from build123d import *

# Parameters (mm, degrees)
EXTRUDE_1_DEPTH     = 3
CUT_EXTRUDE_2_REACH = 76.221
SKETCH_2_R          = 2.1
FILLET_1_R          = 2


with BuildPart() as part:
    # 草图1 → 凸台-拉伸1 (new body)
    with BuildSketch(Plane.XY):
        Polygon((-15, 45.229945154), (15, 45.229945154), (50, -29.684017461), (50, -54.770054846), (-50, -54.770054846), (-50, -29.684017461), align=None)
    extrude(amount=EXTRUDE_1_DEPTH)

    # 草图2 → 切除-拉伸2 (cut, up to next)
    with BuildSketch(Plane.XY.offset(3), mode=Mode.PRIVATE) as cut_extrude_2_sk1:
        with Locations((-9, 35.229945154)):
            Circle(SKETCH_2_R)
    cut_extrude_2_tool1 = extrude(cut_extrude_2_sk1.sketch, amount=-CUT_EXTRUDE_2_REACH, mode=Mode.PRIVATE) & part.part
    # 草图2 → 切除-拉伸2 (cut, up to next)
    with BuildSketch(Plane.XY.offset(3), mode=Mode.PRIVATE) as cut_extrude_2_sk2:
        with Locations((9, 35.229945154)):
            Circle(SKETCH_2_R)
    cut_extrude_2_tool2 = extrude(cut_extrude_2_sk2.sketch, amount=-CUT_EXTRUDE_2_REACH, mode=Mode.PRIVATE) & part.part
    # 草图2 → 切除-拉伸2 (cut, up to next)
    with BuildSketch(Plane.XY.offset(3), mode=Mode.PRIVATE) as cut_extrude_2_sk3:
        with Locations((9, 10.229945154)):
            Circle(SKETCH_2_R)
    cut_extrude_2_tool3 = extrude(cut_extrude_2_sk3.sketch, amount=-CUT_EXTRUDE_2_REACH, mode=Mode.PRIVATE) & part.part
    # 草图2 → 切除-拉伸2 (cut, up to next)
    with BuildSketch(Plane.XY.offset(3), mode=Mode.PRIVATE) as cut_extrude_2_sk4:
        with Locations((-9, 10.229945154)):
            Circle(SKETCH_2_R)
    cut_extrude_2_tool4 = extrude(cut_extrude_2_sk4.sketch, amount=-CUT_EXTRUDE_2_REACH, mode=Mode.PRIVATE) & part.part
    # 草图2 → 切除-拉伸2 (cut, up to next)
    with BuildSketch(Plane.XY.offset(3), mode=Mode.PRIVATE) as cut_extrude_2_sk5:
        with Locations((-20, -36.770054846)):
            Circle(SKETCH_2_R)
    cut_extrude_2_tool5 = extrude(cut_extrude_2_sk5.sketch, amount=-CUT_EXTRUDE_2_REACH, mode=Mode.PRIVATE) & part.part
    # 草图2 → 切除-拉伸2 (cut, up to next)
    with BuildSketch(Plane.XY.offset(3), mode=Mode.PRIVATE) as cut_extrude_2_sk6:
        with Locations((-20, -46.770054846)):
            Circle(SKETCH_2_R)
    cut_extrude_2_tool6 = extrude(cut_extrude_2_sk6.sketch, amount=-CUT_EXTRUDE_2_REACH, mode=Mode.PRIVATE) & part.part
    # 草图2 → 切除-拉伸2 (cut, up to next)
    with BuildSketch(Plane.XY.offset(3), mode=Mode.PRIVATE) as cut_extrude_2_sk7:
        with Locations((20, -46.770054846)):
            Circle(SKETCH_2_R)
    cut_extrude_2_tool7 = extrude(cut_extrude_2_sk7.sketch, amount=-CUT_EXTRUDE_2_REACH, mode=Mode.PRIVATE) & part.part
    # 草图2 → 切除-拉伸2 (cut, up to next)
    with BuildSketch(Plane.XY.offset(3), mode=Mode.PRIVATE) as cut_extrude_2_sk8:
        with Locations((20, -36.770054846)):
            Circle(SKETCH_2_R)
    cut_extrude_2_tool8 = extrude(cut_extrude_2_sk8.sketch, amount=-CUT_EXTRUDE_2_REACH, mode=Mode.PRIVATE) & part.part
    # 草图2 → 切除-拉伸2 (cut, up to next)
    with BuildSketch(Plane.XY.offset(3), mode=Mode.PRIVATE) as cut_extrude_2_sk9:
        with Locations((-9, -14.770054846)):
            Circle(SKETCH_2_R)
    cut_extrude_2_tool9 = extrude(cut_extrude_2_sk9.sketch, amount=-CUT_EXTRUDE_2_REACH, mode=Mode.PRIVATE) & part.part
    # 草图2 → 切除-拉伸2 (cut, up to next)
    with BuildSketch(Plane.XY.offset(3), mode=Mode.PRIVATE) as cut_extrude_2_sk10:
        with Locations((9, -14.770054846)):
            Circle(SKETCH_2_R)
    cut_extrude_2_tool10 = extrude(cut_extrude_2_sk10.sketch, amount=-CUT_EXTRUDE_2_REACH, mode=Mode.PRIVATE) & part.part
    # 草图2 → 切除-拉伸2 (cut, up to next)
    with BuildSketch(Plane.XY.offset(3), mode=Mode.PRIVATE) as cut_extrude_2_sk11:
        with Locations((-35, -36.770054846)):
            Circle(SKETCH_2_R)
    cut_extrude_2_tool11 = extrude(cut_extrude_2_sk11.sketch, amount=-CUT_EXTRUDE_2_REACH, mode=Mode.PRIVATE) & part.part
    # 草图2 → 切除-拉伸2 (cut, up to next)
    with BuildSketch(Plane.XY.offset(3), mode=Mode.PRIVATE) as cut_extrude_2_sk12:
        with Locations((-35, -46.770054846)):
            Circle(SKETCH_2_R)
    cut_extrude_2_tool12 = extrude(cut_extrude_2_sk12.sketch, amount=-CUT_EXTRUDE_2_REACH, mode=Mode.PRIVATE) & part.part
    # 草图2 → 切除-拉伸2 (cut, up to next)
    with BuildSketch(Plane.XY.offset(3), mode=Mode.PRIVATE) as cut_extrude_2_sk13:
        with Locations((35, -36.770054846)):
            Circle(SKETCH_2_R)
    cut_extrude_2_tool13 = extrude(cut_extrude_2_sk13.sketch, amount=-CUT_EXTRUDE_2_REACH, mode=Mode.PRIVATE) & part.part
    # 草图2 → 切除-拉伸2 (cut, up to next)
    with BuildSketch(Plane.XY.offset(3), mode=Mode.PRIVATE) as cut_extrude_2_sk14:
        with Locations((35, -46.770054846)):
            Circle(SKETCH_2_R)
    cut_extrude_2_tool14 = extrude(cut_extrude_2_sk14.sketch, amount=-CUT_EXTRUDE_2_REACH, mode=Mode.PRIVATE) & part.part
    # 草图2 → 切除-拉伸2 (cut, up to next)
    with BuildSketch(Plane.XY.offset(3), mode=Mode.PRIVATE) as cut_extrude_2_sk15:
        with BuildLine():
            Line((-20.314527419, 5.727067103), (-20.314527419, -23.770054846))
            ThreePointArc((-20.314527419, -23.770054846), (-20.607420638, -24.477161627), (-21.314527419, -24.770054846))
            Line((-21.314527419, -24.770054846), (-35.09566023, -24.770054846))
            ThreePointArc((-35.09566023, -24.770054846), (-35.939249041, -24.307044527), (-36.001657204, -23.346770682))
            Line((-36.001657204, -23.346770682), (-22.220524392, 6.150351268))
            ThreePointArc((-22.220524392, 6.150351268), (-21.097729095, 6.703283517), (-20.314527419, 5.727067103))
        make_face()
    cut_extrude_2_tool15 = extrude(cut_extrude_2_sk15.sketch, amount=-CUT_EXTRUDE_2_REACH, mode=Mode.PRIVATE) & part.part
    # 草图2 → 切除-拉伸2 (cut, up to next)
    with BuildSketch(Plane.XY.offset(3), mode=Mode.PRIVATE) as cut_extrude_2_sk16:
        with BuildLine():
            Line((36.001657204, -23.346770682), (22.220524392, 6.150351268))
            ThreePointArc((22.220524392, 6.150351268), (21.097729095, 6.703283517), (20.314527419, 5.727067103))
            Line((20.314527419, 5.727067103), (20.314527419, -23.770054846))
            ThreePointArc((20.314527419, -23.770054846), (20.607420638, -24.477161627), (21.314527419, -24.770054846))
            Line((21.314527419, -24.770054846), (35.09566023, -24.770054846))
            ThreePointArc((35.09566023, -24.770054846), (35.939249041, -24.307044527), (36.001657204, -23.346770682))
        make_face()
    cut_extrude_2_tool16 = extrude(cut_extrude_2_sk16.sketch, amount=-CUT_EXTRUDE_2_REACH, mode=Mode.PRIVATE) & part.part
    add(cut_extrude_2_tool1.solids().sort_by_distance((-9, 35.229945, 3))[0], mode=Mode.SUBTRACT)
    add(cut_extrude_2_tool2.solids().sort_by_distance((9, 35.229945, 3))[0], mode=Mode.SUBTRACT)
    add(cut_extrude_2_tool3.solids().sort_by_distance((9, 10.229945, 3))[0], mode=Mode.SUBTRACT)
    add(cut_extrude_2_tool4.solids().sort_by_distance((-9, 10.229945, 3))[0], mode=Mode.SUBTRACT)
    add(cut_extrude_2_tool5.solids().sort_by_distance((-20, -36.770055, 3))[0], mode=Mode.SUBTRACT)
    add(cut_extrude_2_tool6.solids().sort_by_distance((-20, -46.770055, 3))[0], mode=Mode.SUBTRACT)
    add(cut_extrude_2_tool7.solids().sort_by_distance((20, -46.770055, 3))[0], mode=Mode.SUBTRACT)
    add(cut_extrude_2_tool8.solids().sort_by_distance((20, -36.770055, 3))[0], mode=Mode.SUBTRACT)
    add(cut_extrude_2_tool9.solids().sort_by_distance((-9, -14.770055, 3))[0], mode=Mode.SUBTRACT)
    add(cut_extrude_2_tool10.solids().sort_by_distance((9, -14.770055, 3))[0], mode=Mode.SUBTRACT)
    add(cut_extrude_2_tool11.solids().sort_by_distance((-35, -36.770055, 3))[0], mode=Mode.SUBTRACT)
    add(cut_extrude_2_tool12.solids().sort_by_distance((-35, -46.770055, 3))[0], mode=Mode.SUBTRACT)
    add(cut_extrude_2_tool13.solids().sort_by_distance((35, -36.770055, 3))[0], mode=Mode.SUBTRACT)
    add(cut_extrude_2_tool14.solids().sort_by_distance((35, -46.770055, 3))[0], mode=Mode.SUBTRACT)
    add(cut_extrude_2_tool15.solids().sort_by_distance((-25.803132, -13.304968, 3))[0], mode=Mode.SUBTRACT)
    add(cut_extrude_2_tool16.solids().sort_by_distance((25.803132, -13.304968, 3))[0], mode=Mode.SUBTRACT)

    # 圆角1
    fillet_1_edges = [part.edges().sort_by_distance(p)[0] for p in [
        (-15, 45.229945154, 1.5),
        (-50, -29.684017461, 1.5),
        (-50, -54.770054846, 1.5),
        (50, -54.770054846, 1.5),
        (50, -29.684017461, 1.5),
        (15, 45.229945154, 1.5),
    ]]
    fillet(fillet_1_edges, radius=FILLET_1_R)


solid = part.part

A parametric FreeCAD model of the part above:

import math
import FreeCAD as App
import Part
import Sketcher

V = App.Vector


def edges_at(feature, points):
    """Names of the edges that pass closest to the given points."""
    edges = feature.Shape.Edges
    near = lambda p: min(range(len(edges)), key=lambda i: edges[i].distToShape(Part.Vertex(*p))[0])
    return sorted({f"Edge{near(p) + 1}" for p in points})

doc = App.newDocument("Part")
body = doc.addObject("PartDesign::Body", "Body")

sketch1 = doc.addObject("Sketcher::SketchObject", "Sketch")
body.addObject(sketch1)
sketch1.AttachmentSupport = (doc.XY_Plane, [""])
sketch1.MapMode = "FlatFace"
sketch1.addGeometry([
    Part.LineSegment(V(15, 45.229945, 0), V(-15, 45.229945, 0)),
    Part.LineSegment(V(-15, 45.229945, 0), V(-50, -29.684017, 0)),
    Part.LineSegment(V(-50, -29.684017, 0), V(-50, -54.770055, 0)),
    Part.LineSegment(V(-50, -54.770055, 0), V(50, -54.770055, 0)),
    Part.LineSegment(V(50, -54.770055, 0), V(50, -29.684017, 0)),
    Part.LineSegment(V(50, -29.684017, 0), V(15, 45.229945, 0)),
], False)
sketch1.addConstraint([
    Sketcher.Constraint("Coincident", 0, 2, 1, 1),
    Sketcher.Constraint("Coincident", 1, 2, 2, 1),
    Sketcher.Constraint("Coincident", 2, 2, 3, 1),
    Sketcher.Constraint("Coincident", 3, 2, 4, 1),
    Sketcher.Constraint("Coincident", 4, 2, 5, 1),
    Sketcher.Constraint("Coincident", 5, 2, 0, 1),
    Sketcher.Constraint("Horizontal", 0),
    Sketcher.Constraint("Vertical", 2),
    Sketcher.Constraint("Horizontal", 3),
    Sketcher.Constraint("Vertical", 4),
    Sketcher.Constraint("Symmetric", 1, 2, 4, 2, -2),
    Sketcher.Constraint("Equal", 1, 5),
    Sketcher.Constraint("DistanceX", 0, 2, 0, 1, 30.0),
    Sketcher.Constraint("DistanceX", 3, 1, 3, 2, 100.0),
    Sketcher.Constraint("DistanceY", 2, 2, 0, 2, 100.0),
    Sketcher.Constraint("Distance", 1, 82.686769),
    Sketcher.Constraint("DistanceY", -1, 1, 0, 2, 45.229945),
])
pad1 = doc.addObject("PartDesign::Pad", "Pad")
body.addObject(pad1)
pad1.Profile = sketch1
pad1.Length = 3

sketch2 = doc.addObject("Sketcher::SketchObject", "Sketch001")
body.addObject(sketch2)
sketch2.AttachmentSupport = (doc.XY_Plane, [""])
sketch2.MapMode = "FlatFace"
sketch2.AttachmentOffset = App.Placement(V(0, 0, 3), App.Rotation())
sketch2.addGeometry(Part.Circle(V(-9, 35.229945, 0), V(0, 0, 1), 2.1), False)
sketch2.addConstraint([
    Sketcher.Constraint("Diameter", 0, 4.2),
    Sketcher.Constraint("DistanceX", 0, 3, -1, 1, 9.0),
    Sketcher.Constraint("DistanceY", -1, 1, 0, 3, 35.229945),
])
pocket1 = doc.addObject("PartDesign::Pocket", "Pocket")
body.addObject(pocket1)
pocket1.Profile = sketch2
pocket1.Type = "UpToFirst"

sketch3 = doc.addObject("Sketcher::SketchObject", "Sketch002")
body.addObject(sketch3)
sketch3.AttachmentSupport = (doc.XY_Plane, [""])
sketch3.MapMode = "FlatFace"
sketch3.AttachmentOffset = App.Placement(V(0, 0, 3), App.Rotation())
sketch3.addGeometry(Part.Circle(V(9, 35.229945, 0), V(0, 0, 1), 2.1), False)
sketch3.addConstraint([
    Sketcher.Constraint("Diameter", 0, 4.2),
    Sketcher.Constraint("DistanceX", -1, 1, 0, 3, 9.0),
    Sketcher.Constraint("DistanceY", -1, 1, 0, 3, 35.229945),
])
pocket2 = doc.addObject("PartDesign::Pocket", "Pocket001")
body.addObject(pocket2)
pocket2.Profile = sketch3
pocket2.Type = "UpToFirst"

sketch4 = doc.addObject("Sketcher::SketchObject", "Sketch003")
body.addObject(sketch4)
sketch4.AttachmentSupport = (doc.XY_Plane, [""])
sketch4.MapMode = "FlatFace"
sketch4.AttachmentOffset = App.Placement(V(0, 0, 3), App.Rotation())
sketch4.addGeometry(Part.Circle(V(9, 10.229945, 0), V(0, 0, 1), 2.1), False)
sketch4.addConstraint([
    Sketcher.Constraint("Diameter", 0, 4.2),
    Sketcher.Constraint("DistanceX", -1, 1, 0, 3, 9.0),
    Sketcher.Constraint("DistanceY", -1, 1, 0, 3, 10.229945),
])
pocket3 = doc.addObject("PartDesign::Pocket", "Pocket002")
body.addObject(pocket3)
pocket3.Profile = sketch4
pocket3.Type = "UpToFirst"

sketch5 = doc.addObject("Sketcher::SketchObject", "Sketch004")
body.addObject(sketch5)
sketch5.AttachmentSupport = (doc.XY_Plane, [""])
sketch5.MapMode = "FlatFace"
sketch5.AttachmentOffset = App.Placement(V(0, 0, 3), App.Rotation())
sketch5.addGeometry(Part.Circle(V(-9, 10.229945, 0), V(0, 0, 1), 2.1), False)
sketch5.addConstraint([
    Sketcher.Constraint("Diameter", 0, 4.2),
    Sketcher.Constraint("DistanceX", 0, 3, -1, 1, 9.0),
    Sketcher.Constraint("DistanceY", -1, 1, 0, 3, 10.229945),
])
pocket4 = doc.addObject("PartDesign::Pocket", "Pocket003")
body.addObject(pocket4)
pocket4.Profile = sketch5
pocket4.Type = "UpToFirst"

sketch6 = doc.addObject("Sketcher::SketchObject", "Sketch005")
body.addObject(sketch6)
sketch6.AttachmentSupport = (doc.XY_Plane, [""])
sketch6.MapMode = "FlatFace"
sketch6.AttachmentOffset = App.Placement(V(0, 0, 3), App.Rotation())
sketch6.addGeometry(Part.Circle(V(-20, -36.770055, 0), V(0, 0, 1), 2.1), False)
sketch6.addConstraint([
    Sketcher.Constraint("Diameter", 0, 4.2),
    Sketcher.Constraint("DistanceX", 0, 3, -1, 1, 20.0),
    Sketcher.Constraint("DistanceY", 0, 3, -1, 1, 36.770055),
])
pocket5 = doc.addObject("PartDesign::Pocket", "Pocket004")
body.addObject(pocket5)
pocket5.Profile = sketch6
pocket5.Type = "UpToFirst"

sketch7 = doc.addObject("Sketcher::SketchObject", "Sketch006")
body.addObject(sketch7)
sketch7.AttachmentSupport = (doc.XY_Plane, [""])
sketch7.MapMode = "FlatFace"
sketch7.AttachmentOffset = App.Placement(V(0, 0, 3), App.Rotation())
sketch7.addGeometry(Part.Circle(V(-20, -46.770055, 0), V(0, 0, 1), 2.1), False)
sketch7.addConstraint([
    Sketcher.Constraint("Diameter", 0, 4.2),
    Sketcher.Constraint("DistanceX", 0, 3, -1, 1, 20.0),
    Sketcher.Constraint("DistanceY", 0, 3, -1, 1, 46.770055),
])
pocket6 = doc.addObject("PartDesign::Pocket", "Pocket005")
body.addObject(pocket6)
pocket6.Profile = sketch7
pocket6.Type = "UpToFirst"

sketch8 = doc.addObject("Sketcher::SketchObject", "Sketch007")
body.addObject(sketch8)
sketch8.AttachmentSupport = (doc.XY_Plane, [""])
sketch8.MapMode = "FlatFace"
sketch8.AttachmentOffset = App.Placement(V(0, 0, 3), App.Rotation())
sketch8.addGeometry(Part.Circle(V(20, -46.770055, 0), V(0, 0, 1), 2.1), False)
sketch8.addConstraint([
    Sketcher.Constraint("Diameter", 0, 4.2),
    Sketcher.Constraint("DistanceX", -1, 1, 0, 3, 20.0),
    Sketcher.Constraint("DistanceY", 0, 3, -1, 1, 46.770055),
])
pocket7 = doc.addObject("PartDesign::Pocket", "Pocket006")
body.addObject(pocket7)
pocket7.Profile = sketch8
pocket7.Type = "UpToFirst"

sketch9 = doc.addObject("Sketcher::SketchObject", "Sketch008")
body.addObject(sketch9)
sketch9.AttachmentSupport = (doc.XY_Plane, [""])
sketch9.MapMode = "FlatFace"
sketch9.AttachmentOffset = App.Placement(V(0, 0, 3), App.Rotation())
sketch9.addGeometry(Part.Circle(V(20, -36.770055, 0), V(0, 0, 1), 2.1), False)
sketch9.addConstraint([
    Sketcher.Constraint("Diameter", 0, 4.2),
    Sketcher.Constraint("DistanceX", -1, 1, 0, 3, 20.0),
    Sketcher.Constraint("DistanceY", 0, 3, -1, 1, 36.770055),
])
pocket8 = doc.addObject("PartDesign::Pocket", "Pocket007")
body.addObject(pocket8)
pocket8.Profile = sketch9
pocket8.Type = "UpToFirst"

sketch10 = doc.addObject("Sketcher::SketchObject", "Sketch009")
body.addObject(sketch10)
sketch10.AttachmentSupport = (doc.XY_Plane, [""])
sketch10.MapMode = "FlatFace"
sketch10.AttachmentOffset = App.Placement(V(0, 0, 3), App.Rotation())
sketch10.addGeometry(Part.Circle(V(-9, -14.770055, 0), V(0, 0, 1), 2.1), False)
sketch10.addConstraint([
    Sketcher.Constraint("Diameter", 0, 4.2),
    Sketcher.Constraint("DistanceX", 0, 3, -1, 1, 9.0),
    Sketcher.Constraint("DistanceY", 0, 3, -1, 1, 14.770055),
])
pocket9 = doc.addObject("PartDesign::Pocket", "Pocket008")
body.addObject(pocket9)
pocket9.Profile = sketch10
pocket9.Type = "UpToFirst"

sketch11 = doc.addObject("Sketcher::SketchObject", "Sketch010")
body.addObject(sketch11)
sketch11.AttachmentSupport = (doc.XY_Plane, [""])
sketch11.MapMode = "FlatFace"
sketch11.AttachmentOffset = App.Placement(V(0, 0, 3), App.Rotation())
sketch11.addGeometry(Part.Circle(V(9, -14.770055, 0), V(0, 0, 1), 2.1), False)
sketch11.addConstraint([
    Sketcher.Constraint("Diameter", 0, 4.2),
    Sketcher.Constraint("DistanceX", -1, 1, 0, 3, 9.0),
    Sketcher.Constraint("DistanceY", 0, 3, -1, 1, 14.770055),
])
pocket10 = doc.addObject("PartDesign::Pocket", "Pocket009")
body.addObject(pocket10)
pocket10.Profile = sketch11
pocket10.Type = "UpToFirst"

sketch12 = doc.addObject("Sketcher::SketchObject", "Sketch011")
body.addObject(sketch12)
sketch12.AttachmentSupport = (doc.XY_Plane, [""])
sketch12.MapMode = "FlatFace"
sketch12.AttachmentOffset = App.Placement(V(0, 0, 3), App.Rotation())
sketch12.addGeometry(Part.Circle(V(-35, -36.770055, 0), V(0, 0, 1), 2.1), False)
sketch12.addConstraint([
    Sketcher.Constraint("Diameter", 0, 4.2),
    Sketcher.Constraint("DistanceX", 0, 3, -1, 1, 35.0),
    Sketcher.Constraint("DistanceY", 0, 3, -1, 1, 36.770055),
])
pocket11 = doc.addObject("PartDesign::Pocket", "Pocket010")
body.addObject(pocket11)
pocket11.Profile = sketch12
pocket11.Type = "UpToFirst"

sketch13 = doc.addObject("Sketcher::SketchObject", "Sketch012")
body.addObject(sketch13)
sketch13.AttachmentSupport = (doc.XY_Plane, [""])
sketch13.MapMode = "FlatFace"
sketch13.AttachmentOffset = App.Placement(V(0, 0, 3), App.Rotation())
sketch13.addGeometry(Part.Circle(V(-35, -46.770055, 0), V(0, 0, 1), 2.1), False)
sketch13.addConstraint([
    Sketcher.Constraint("Diameter", 0, 4.2),
    Sketcher.Constraint("DistanceX", 0, 3, -1, 1, 35.0),
    Sketcher.Constraint("DistanceY", 0, 3, -1, 1, 46.770055),
])
pocket12 = doc.addObject("PartDesign::Pocket", "Pocket011")
body.addObject(pocket12)
pocket12.Profile = sketch13
pocket12.Type = "UpToFirst"

sketch14 = doc.addObject("Sketcher::SketchObject", "Sketch013")
body.addObject(sketch14)
sketch14.AttachmentSupport = (doc.XY_Plane, [""])
sketch14.MapMode = "FlatFace"
sketch14.AttachmentOffset = App.Placement(V(0, 0, 3), App.Rotation())
sketch14.addGeometry(Part.Circle(V(35, -36.770055, 0), V(0, 0, 1), 2.1), False)
sketch14.addConstraint([
    Sketcher.Constraint("Diameter", 0, 4.2),
    Sketcher.Constraint("DistanceX", -1, 1, 0, 3, 35.0),
    Sketcher.Constraint("DistanceY", 0, 3, -1, 1, 36.770055),
])
pocket13 = doc.addObject("PartDesign::Pocket", "Pocket012")
body.addObject(pocket13)
pocket13.Profile = sketch14
pocket13.Type = "UpToFirst"

sketch15 = doc.addObject("Sketcher::SketchObject", "Sketch014")
body.addObject(sketch15)
sketch15.AttachmentSupport = (doc.XY_Plane, [""])
sketch15.MapMode = "FlatFace"
sketch15.AttachmentOffset = App.Placement(V(0, 0, 3), App.Rotation())
sketch15.addGeometry(Part.Circle(V(35, -46.770055, 0), V(0, 0, 1), 2.1), False)
sketch15.addConstraint([
    Sketcher.Constraint("Diameter", 0, 4.2),
    Sketcher.Constraint("DistanceX", -1, 1, 0, 3, 35.0),
    Sketcher.Constraint("DistanceY", 0, 3, -1, 1, 46.770055),
])
pocket14 = doc.addObject("PartDesign::Pocket", "Pocket013")
body.addObject(pocket14)
pocket14.Profile = sketch15
pocket14.Type = "UpToFirst"

sketch16 = doc.addObject("Sketcher::SketchObject", "Sketch015")
body.addObject(sketch16)
sketch16.AttachmentSupport = (doc.XY_Plane, [""])
sketch16.MapMode = "FlatFace"
sketch16.AttachmentOffset = App.Placement(V(0, 0, 3), App.Rotation())
sketch16.addGeometry([
    Part.LineSegment(V(-20.314527, -23.770055, 0), V(-20.314527, 5.727067, 0)),
    Part.ArcOfCircle(Part.Circle(V(-21.314527, 5.727067, 0), V(0, 0, 1), 1), math.radians(0), math.radians(154.957895)),
    Part.LineSegment(V(-22.220524, 6.150351, 0), V(-36.001657, -23.346771, 0)),
    Part.ArcOfCircle(Part.Circle(V(-35.09566, -23.770055, 0), V(0, 0, 1), 1), math.radians(154.957895), math.radians(270)),
    Part.LineSegment(V(-35.09566, -24.770055, 0), V(-21.314527, -24.770055, 0)),
    Part.ArcOfCircle(Part.Circle(V(-21.314527, -23.770055, 0), V(0, 0, 1), 1), math.radians(-90), math.radians(0)),
], False)
sketch16.addConstraint([
    Sketcher.Constraint("Tangent", 0, 2, 1, 1),
    Sketcher.Constraint("Tangent", 1, 2, 2, 1),
    Sketcher.Constraint("Tangent", 2, 2, 3, 1),
    Sketcher.Constraint("Tangent", 3, 2, 4, 1),
    Sketcher.Constraint("Tangent", 4, 2, 5, 1),
    Sketcher.Constraint("Tangent", 5, 2, 0, 1),
    Sketcher.Constraint("Vertical", 0),
    Sketcher.Constraint("Horizontal", 4),
    Sketcher.Constraint("Equal", 1, 3),
    Sketcher.Constraint("Equal", 3, 5),
    Sketcher.Constraint("Radius", 1, 1.0),
    Sketcher.Constraint("DistanceY", 0, 1, 0, 2, 29.497122),
    Sketcher.Constraint("Distance", 2, 32.557639),
    Sketcher.Constraint("DistanceX", 3, 3, -1, 1, 35.09566),
    Sketcher.Constraint("DistanceY", -1, 1, 1, 2, 6.150351),
])
pocket15 = doc.addObject("PartDesign::Pocket", "Pocket014")
body.addObject(pocket15)
pocket15.Profile = sketch16
pocket15.Type = "UpToFirst"

sketch17 = doc.addObject("Sketcher::SketchObject", "Sketch016")
body.addObject(sketch17)
sketch17.AttachmentSupport = (doc.XY_Plane, [""])
sketch17.MapMode = "FlatFace"
sketch17.AttachmentOffset = App.Placement(V(0, 0, 3), App.Rotation())
sketch17.addGeometry([
    Part.LineSegment(V(36.001657, -23.346771, 0), V(22.220524, 6.150351, 0)),
    Part.ArcOfCircle(Part.Circle(V(21.314527, 5.727067, 0), V(0, 0, 1), 1), math.radians(25.042105), math.radians(180)),
    Part.LineSegment(V(20.314527, 5.727067, 0), V(20.314527, -23.770055, 0)),
    Part.ArcOfCircle(Part.Circle(V(21.314527, -23.770055, 0), V(0, 0, 1), 1), math.radians(-180), math.radians(-90)),
    Part.LineSegment(V(21.314527, -24.770055, 0), V(35.09566, -24.770055, 0)),
    Part.ArcOfCircle(Part.Circle(V(35.09566, -23.770055, 0), V(0, 0, 1), 1), math.radians(-90), math.radians(25.042105)),
], False)
sketch17.addConstraint([
    Sketcher.Constraint("Tangent", 0, 2, 1, 1),
    Sketcher.Constraint("Tangent", 1, 2, 2, 1),
    Sketcher.Constraint("Tangent", 2, 2, 3, 1),
    Sketcher.Constraint("Tangent", 3, 2, 4, 1),
    Sketcher.Constraint("Tangent", 4, 2, 5, 1),
    Sketcher.Constraint("Tangent", 5, 2, 0, 1),
    Sketcher.Constraint("Vertical", 2),
    Sketcher.Constraint("Horizontal", 4),
    Sketcher.Constraint("Equal", 1, 3),
    Sketcher.Constraint("Equal", 3, 5),
    Sketcher.Constraint("Radius", 1, 1.0),
    Sketcher.Constraint("DistanceY", 2, 2, 2, 1, 29.497122),
    Sketcher.Constraint("Distance", 0, 32.557639),
    Sketcher.Constraint("DistanceX", -1, 1, 5, 3, 35.09566),
    Sketcher.Constraint("DistanceY", -1, 1, 0, 2, 6.150351),
])
pocket16 = doc.addObject("PartDesign::Pocket", "Pocket015")
body.addObject(pocket16)
pocket16.Profile = sketch17
pocket16.Type = "UpToFirst"
doc.recompute()

fillet = doc.addObject("PartDesign::Fillet", "Fillet")
body.addObject(fillet)
fillet.Base = (pocket16, edges_at(pocket16, [
    (-15, 45.23, 1.5),
    (-50, -29.684, 1.5),
    (-50, -54.77, 1.5),
    (50, -54.77, 1.5),
    (50, -29.684, 1.5),
    (15, 45.23, 1.5),
]))
fillet.Radius = 2

doc.recompute()
